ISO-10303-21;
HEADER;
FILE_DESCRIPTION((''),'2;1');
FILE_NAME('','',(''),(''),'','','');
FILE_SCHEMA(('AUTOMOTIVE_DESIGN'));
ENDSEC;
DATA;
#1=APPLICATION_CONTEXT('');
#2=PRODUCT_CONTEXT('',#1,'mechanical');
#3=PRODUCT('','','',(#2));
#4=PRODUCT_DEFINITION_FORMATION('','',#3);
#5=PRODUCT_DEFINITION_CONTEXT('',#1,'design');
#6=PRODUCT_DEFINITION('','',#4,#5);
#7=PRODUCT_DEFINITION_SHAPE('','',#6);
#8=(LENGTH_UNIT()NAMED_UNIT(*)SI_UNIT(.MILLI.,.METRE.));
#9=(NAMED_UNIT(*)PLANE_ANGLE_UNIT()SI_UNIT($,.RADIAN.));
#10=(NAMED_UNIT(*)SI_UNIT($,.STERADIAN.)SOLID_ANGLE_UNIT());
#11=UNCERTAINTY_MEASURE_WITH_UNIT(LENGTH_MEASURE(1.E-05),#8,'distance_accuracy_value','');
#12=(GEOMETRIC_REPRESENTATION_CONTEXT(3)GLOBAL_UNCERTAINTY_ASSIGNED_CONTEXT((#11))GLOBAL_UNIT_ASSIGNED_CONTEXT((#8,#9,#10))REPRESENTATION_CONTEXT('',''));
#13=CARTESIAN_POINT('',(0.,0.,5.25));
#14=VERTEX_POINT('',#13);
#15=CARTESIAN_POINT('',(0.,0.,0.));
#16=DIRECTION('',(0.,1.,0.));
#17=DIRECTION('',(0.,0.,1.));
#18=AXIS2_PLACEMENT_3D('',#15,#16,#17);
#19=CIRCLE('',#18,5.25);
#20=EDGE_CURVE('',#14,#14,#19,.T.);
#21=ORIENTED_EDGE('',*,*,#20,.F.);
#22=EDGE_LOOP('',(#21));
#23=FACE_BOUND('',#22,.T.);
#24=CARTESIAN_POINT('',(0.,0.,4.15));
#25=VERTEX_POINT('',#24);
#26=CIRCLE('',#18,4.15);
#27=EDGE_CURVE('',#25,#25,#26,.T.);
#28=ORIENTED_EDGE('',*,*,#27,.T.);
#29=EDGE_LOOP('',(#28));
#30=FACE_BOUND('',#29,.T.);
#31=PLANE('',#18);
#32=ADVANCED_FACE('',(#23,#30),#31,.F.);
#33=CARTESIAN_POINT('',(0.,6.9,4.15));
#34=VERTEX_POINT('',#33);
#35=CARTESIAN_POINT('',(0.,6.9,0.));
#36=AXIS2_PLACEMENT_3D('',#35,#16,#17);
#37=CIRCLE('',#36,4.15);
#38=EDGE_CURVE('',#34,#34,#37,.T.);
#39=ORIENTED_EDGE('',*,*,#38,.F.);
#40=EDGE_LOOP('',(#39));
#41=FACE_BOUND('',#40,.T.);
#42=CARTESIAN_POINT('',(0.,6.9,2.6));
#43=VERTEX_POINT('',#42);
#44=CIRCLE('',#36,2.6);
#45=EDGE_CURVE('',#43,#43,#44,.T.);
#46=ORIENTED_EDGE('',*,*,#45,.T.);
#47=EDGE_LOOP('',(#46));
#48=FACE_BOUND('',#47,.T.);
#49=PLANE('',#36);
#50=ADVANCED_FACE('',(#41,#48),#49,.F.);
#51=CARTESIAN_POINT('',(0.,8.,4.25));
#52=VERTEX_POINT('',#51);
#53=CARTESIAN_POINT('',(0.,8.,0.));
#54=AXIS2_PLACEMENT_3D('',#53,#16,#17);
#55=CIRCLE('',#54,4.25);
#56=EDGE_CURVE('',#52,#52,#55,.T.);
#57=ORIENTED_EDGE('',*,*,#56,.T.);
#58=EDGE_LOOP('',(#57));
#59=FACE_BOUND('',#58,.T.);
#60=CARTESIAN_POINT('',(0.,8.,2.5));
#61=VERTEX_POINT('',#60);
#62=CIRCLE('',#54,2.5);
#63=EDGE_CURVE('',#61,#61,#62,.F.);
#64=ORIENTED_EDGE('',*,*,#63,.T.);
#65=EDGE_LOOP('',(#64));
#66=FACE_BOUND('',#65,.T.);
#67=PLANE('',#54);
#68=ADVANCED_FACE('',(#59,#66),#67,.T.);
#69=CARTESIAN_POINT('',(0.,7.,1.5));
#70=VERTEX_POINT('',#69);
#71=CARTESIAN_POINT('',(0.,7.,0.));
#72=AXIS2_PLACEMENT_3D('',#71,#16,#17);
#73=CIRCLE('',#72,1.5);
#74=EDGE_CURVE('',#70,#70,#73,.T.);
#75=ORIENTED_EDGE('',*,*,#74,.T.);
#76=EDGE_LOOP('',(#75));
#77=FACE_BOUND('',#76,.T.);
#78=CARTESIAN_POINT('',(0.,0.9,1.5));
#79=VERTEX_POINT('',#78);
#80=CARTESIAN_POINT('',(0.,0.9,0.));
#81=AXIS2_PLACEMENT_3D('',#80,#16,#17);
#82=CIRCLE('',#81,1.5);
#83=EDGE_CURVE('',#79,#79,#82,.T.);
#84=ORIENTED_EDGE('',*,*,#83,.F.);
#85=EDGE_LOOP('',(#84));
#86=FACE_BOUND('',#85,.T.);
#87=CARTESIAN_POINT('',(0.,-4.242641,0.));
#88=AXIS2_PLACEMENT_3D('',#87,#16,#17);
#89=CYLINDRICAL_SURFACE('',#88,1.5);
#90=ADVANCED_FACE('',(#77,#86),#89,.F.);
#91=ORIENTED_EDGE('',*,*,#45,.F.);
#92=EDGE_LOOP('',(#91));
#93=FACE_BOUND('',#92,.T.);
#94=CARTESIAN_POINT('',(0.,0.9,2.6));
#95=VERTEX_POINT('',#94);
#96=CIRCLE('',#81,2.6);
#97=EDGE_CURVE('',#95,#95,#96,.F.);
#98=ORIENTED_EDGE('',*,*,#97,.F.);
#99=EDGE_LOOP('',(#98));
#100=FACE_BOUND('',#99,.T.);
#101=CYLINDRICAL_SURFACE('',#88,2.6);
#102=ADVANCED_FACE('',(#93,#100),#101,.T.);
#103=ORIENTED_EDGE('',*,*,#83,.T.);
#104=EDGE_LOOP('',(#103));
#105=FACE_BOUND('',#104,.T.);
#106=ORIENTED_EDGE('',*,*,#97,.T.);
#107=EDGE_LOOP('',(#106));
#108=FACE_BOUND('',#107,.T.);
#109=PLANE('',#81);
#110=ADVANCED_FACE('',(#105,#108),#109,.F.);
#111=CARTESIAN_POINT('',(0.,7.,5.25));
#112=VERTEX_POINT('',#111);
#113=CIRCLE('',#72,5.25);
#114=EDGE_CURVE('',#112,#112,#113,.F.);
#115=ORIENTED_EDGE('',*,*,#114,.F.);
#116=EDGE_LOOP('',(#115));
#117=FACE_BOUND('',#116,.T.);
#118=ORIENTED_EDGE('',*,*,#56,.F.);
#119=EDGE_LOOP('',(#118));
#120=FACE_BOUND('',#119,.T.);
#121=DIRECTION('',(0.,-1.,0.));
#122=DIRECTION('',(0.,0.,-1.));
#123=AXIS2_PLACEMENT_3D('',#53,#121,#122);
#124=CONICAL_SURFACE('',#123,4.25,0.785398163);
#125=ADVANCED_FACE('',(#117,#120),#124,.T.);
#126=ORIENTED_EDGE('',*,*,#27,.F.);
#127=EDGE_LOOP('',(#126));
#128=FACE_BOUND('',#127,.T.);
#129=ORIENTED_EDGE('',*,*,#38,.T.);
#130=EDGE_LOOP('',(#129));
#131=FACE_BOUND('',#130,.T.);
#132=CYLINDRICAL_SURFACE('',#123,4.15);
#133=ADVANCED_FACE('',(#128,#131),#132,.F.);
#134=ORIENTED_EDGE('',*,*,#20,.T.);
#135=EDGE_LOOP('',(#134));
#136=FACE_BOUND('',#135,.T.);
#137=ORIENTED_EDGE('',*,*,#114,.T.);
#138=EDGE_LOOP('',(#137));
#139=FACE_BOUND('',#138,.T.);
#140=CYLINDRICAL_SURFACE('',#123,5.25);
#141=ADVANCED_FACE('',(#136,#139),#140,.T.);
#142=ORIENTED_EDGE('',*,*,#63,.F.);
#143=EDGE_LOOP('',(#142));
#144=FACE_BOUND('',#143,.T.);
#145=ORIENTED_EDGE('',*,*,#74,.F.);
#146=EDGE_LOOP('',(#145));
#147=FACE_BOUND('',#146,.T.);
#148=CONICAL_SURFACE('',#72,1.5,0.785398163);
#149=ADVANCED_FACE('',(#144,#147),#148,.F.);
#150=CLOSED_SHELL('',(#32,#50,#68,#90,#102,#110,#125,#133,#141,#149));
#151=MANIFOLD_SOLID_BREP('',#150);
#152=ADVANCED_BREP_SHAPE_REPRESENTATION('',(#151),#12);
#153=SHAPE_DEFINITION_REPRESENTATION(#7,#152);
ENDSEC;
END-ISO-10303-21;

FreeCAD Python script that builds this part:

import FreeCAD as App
import Part
import Sketcher

V = App.Vector


def edges_at(feature, points):
    """Names of the edges that pass closest to the given points."""
    edges = feature.Shape.Edges
    near = lambda p: min(range(len(edges)), key=lambda i: edges[i].distToShape(Part.Vertex(*p))[0])
    return sorted({f"Edge{near(p) + 1}" for p in points})


def faces_at(feature, points):
    """Names of the faces that lie closest to the given points."""
    faces = feature.Shape.Faces
    near = lambda p: min(range(len(faces)), key=lambda i: faces[i].distToShape(Part.Vertex(*p))[0])
    return sorted({f"Face{near(p) + 1}" for p in points})

doc = App.newDocument("Part")
body = doc.addObject("PartDesign::Body", "Body")

# Sketch on XZ plane
sketch1 = doc.addObject("Sketcher::SketchObject", "Sketch")
body.addObject(sketch1)
sketch1.AttachmentSupport = (doc.XZ_Plane, [""])
sketch1.MapMode = "FlatFace"
sketch1.addGeometry(Part.Circle(V(0, 0, 0), V(0, 0, 1), 5), False)
sketch1.addConstraint(Sketcher.Constraint("Coincident", 0, 3, -1, 1))
sketch1.addConstraint(Sketcher.Constraint("Diameter", 0, 10.5))
pad1 = doc.addObject("PartDesign::Pad", "Pad")
body.addObject(pad1)
pad1.Profile = sketch1
pad1.Length = 8
pad1.Reversed = True

# Sketch on XZ plane
sketch2 = doc.addObject("Sketcher::SketchObject", "Sketch001")
body.addObject(sketch2)
sketch2.AttachmentSupport = (doc.XZ_Plane, [""])
sketch2.MapMode = "FlatFace"
sketch2.AttachmentOffset = App.Placement(V(0, 0, -8), App.Rotation())
sketch2.addGeometry(Part.Circle(V(0, 0, 0), V(0, 0, 1), 1.5), False)
sketch2.addConstraint(Sketcher.Constraint("Coincident", 0, 3, -1, 1))
sketch2.addConstraint(Sketcher.Constraint("Diameter", 0, 3.0))
pocket1 = doc.addObject("PartDesign::Pocket", "Pocket")
body.addObject(pocket1)
pocket1.Profile = sketch2
pocket1.Length = 6
pocket1.Reversed = True
doc.recompute()

thickness = doc.addObject("PartDesign::Thickness", "Thickness")
body.addObject(thickness)
thickness.Base = (pocket1, faces_at(pocket1, [(0, 0, 0)]))
thickness.Value = 1.1
thickness.Reversed = True
thickness.Join = "Intersection"

# Sketch on XZ plane
sketch3 = doc.addObject("Sketcher::SketchObject", "Sketch002")
body.addObject(sketch3)
sketch3.AttachmentSupport = (doc.XZ_Plane, [""])
sketch3.MapMode = "FlatFace"
sketch3.AttachmentOffset = App.Placement(V(0, 0, -2), App.Rotation())
sketch3.addGeometry(Part.Circle(V(0, 0, 0), V(0, 0, 1), 1.5), False)
sketch3.addConstraint(Sketcher.Constraint("Coincident", 0, 3, -1, 1))
sketch3.addConstraint(Sketcher.Constraint("Diameter", 0, 3.0))
pocket2 = doc.addObject("PartDesign::Pocket", "Pocket001")
body.addObject(pocket2)
pocket2.Profile = sketch3
pocket2.Type = "ThroughAll"
pocket2.Reversed = True
doc.recompute()

chamfer = doc.addObject("PartDesign::Chamfer", "Chamfer")
body.addObject(chamfer)
chamfer.Base = (pocket2, edges_at(pocket2, [(0, 8, -5.25)]))
chamfer.Size = 1
doc.recompute()

chamfer2 = doc.addObject("PartDesign::Chamfer", "Chamfer001")
body.addObject(chamfer2)
chamfer2.Base = (chamfer, edges_at(chamfer, [(0, 8, -1.5)]))
chamfer2.Size = 1

doc.recompute()
